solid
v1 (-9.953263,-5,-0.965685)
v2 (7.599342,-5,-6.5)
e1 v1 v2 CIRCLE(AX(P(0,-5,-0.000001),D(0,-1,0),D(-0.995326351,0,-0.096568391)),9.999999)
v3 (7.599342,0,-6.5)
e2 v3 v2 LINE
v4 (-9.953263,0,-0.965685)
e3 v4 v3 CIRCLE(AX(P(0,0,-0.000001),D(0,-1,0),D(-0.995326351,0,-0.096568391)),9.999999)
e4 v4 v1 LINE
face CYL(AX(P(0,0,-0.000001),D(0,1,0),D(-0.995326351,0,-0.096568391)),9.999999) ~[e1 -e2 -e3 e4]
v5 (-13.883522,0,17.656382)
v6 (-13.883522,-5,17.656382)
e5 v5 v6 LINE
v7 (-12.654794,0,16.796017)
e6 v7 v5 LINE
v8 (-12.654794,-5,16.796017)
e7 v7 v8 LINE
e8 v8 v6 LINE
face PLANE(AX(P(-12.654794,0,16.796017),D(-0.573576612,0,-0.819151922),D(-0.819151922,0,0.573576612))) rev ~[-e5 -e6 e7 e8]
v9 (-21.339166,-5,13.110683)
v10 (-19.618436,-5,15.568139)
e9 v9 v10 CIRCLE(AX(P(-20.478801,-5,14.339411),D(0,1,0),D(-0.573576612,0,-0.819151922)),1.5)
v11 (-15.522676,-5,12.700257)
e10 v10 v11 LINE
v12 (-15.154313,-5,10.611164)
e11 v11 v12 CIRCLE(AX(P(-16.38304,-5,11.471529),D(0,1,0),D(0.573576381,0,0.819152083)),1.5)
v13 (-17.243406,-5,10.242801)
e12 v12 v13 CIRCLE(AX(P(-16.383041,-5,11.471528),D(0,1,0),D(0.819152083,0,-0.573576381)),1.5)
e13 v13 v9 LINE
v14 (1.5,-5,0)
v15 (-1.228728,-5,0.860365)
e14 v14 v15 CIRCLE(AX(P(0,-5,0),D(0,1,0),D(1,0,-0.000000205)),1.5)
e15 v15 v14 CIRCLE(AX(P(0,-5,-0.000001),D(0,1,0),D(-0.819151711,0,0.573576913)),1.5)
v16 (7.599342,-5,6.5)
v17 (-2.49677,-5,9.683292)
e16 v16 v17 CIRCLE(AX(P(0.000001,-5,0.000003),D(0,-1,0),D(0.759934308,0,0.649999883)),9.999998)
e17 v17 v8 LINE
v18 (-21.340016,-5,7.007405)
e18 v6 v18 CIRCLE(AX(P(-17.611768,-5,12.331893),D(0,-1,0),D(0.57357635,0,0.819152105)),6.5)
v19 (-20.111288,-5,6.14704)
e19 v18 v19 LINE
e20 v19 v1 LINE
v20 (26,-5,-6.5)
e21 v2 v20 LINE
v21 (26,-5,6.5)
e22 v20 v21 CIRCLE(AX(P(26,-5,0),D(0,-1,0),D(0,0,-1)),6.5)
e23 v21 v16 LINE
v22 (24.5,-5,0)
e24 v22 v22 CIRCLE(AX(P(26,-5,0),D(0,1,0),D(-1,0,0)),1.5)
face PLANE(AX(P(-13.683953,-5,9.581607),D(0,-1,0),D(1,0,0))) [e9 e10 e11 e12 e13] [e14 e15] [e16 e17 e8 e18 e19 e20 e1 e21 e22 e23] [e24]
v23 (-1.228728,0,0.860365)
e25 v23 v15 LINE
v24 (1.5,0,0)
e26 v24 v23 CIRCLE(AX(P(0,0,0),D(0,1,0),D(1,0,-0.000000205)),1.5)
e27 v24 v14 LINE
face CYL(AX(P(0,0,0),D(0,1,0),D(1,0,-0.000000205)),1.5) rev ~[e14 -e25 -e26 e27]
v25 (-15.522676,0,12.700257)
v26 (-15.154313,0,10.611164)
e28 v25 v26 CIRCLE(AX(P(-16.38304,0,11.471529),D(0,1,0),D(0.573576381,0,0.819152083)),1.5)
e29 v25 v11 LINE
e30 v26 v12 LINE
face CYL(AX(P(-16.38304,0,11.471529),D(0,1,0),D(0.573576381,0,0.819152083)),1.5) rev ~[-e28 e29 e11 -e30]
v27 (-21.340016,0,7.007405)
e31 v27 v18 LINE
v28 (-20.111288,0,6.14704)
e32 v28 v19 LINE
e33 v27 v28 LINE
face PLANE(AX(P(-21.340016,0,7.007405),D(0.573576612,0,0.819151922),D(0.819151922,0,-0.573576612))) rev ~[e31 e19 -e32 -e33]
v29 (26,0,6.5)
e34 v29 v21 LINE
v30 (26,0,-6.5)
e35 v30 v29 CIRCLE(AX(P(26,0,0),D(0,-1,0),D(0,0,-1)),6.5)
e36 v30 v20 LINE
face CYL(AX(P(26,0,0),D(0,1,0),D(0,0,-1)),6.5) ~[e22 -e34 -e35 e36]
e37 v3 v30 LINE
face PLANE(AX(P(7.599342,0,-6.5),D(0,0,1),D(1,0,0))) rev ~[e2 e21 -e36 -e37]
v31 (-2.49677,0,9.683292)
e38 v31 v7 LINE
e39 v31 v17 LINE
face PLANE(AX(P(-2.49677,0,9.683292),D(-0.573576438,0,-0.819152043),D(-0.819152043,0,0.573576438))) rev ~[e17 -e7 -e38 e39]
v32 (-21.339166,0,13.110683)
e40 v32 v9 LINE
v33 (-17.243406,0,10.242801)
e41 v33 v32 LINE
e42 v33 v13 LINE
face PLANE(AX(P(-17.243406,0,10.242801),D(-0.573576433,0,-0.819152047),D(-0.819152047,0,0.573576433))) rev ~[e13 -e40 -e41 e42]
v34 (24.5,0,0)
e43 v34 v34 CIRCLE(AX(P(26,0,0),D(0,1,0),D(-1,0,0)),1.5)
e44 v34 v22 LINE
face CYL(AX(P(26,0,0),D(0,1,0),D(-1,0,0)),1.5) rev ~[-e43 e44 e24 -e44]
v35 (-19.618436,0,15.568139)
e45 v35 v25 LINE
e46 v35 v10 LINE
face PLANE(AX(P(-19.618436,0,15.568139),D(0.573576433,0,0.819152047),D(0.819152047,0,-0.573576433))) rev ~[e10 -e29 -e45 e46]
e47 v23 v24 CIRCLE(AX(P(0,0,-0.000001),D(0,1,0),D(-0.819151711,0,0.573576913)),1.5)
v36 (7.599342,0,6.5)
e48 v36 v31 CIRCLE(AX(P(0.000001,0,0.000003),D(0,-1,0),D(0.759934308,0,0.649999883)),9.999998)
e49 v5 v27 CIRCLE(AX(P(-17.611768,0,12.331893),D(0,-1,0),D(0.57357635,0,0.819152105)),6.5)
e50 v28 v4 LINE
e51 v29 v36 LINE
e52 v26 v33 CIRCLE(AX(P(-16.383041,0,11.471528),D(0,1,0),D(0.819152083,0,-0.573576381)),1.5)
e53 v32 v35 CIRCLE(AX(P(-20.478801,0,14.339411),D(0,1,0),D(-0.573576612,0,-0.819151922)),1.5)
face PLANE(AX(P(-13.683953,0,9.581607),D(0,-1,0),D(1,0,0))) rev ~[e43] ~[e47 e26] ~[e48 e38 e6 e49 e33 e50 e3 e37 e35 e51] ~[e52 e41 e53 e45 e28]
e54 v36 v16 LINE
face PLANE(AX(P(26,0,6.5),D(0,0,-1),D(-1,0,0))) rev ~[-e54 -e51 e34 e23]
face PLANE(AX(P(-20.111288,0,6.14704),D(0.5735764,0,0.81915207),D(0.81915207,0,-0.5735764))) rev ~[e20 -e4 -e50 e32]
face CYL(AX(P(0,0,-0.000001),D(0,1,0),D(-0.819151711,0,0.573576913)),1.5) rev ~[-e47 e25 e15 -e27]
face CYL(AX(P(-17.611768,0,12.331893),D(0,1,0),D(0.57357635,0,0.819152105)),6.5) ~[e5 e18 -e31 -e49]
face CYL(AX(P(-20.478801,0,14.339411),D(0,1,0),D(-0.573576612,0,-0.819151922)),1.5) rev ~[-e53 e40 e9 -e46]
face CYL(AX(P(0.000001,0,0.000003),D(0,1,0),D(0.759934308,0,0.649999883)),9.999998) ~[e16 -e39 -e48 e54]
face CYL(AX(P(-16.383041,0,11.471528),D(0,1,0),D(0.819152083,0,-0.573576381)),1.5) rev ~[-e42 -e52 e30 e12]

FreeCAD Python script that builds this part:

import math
import FreeCAD as App
import Part
import Sketcher

V = App.Vector
Q = App.Units.Quantity

doc = App.newDocument("Part")
body = doc.addObject("PartDesign::Body", "Body")

sketch1 = body.newObject("Sketcher::SketchObject", "Sketch")
sketch1.AttachmentSupport = (doc.getObject("XZ_Plane"), [""])
sketch1.MapMode = "FlatFace"
sketch1.addGeometry(Part.ArcOfCircle(Part.Circle(V(0.000001, 0.000003, 0), V(0, 0, 1), 9.999998), math.radians(40.541593), math.radians(104.458406)), False)
sketch1.addGeometry(Part.LineSegment(V(-2.49677, 9.683292, 0), V(-12.654794, 16.796017, 0)), False)
sketch1.addGeometry(Part.LineSegment(V(-12.654794, 16.796017, 0), V(-13.883522, 17.656382, 0)), False)
sketch1.addGeometry(Part.ArcOfCircle(Part.Circle(V(-17.611768, 12.331893, 0), V(0, 0, 1), 6.5), math.radians(55.000006), math.radians(234.999994)), False)
sketch1.addGeometry(Part.LineSegment(V(-21.340016, 7.007405, 0), V(-20.111288, 6.14704, 0)), False)
sketch1.addGeometry(Part.LineSegment(V(-20.111288, 6.14704, 0), V(-9.953263, -0.965685, 0)), False)
sketch1.addGeometry(Part.ArcOfCircle(Part.Circle(V(0, -0.000001, 0), V(0, 0, 1), 9.999999), math.radians(-174.458403), math.radians(-40.541596)), False)
sketch1.addGeometry(Part.LineSegment(V(7.599342, -6.5, 0), V(26, -6.5, 0)), False)
sketch1.addGeometry(Part.ArcOfCircle(Part.Circle(V(26, 0, 0), V(0, 0, 1), 6.5), math.radians(-90), math.radians(90)), False)
sketch1.addGeometry(Part.LineSegment(V(26, 6.5, 0), V(7.599342, 6.5, 0)), False)
sketch1.addGeometry(Part.ArcOfCircle(Part.Circle(V(0, -0.000001, 0), V(0, 0, 1), 1.5), math.radians(0.000019), math.radians(144.999967)), False)
sketch1.addGeometry(Part.ArcOfCircle(Part.Circle(V(0, 0, 0), V(0, 0, 1), 1.5), math.radians(144.999998), math.radians(359.999988)), False)
sketch1.addGeometry(Part.Circle(V(26, 0, 0), V(0, 0, 1), 1.5), False)
sketch1.addGeometry(Part.LineSegment(V(-19.618436, 15.568139, 0), V(-15.522676, 12.700257, 0)), False)
sketch1.addGeometry(Part.ArcOfCircle(Part.Circle(V(-16.38304, 11.471529, 0), V(0, 0, 1), 1.5), math.radians(-35.000028), math.radians(55.000004)), False)
sketch1.addGeometry(Part.ArcOfCircle(Part.Circle(V(-16.383041, 11.471528, 0), V(0, 0, 1), 1.5), math.radians(-125.000028), math.radians(-34.999996)), False)
sketch1.addGeometry(Part.LineSegment(V(-17.243406, 10.242801, 0), V(-21.339166, 13.110683, 0)), False)
sketch1.addGeometry(Part.ArcOfCircle(Part.Circle(V(-20.478801, 14.339411, 0), V(0, 0, 1), 1.5), math.radians(54.999988), math.radians(234.999988)), False)
sketch1.addConstraint(Sketcher.Constraint("Coincident", 0, 2, 1, 1))
sketch1.addConstraint(Sketcher.Constraint("Coincident", 1, 2, 2, 1))
sketch1.addConstraint(Sketcher.Constraint("Tangent", 2, 2, 3, 1))
sketch1.addConstraint(Sketcher.Constraint("Tangent", 3, 2, 4, 1))
sketch1.addConstraint(Sketcher.Constraint("Coincident", 4, 2, 5, 1))
sketch1.addConstraint(Sketcher.Constraint("Coincident", 5, 2, 6, 1))
sketch1.addConstraint(Sketcher.Constraint("Coincident", 6, 2, 7, 1))
sketch1.addConstraint(Sketcher.Constraint("Tangent", 7, 2, 8, 1))
sketch1.addConstraint(Sketcher.Constraint("Tangent", 8, 2, 9, 1))
sketch1.addConstraint(Sketcher.Constraint("Coincident", 9, 2, 0, 1))
sketch1.addConstraint(Sketcher.Constraint("Tangent", 10, 1, 11, 2))
sketch1.addConstraint(Sketcher.Constraint("Coincident", 11, 1, 10, 2))
sketch1.addConstraint(Sketcher.Constraint("Tangent", 13, 2, 14, 2))
sketch1.addConstraint(Sketcher.Constraint("Tangent", 14, 1, 15, 2))
sketch1.addConstraint(Sketcher.Constraint("Tangent", 15, 1, 16, 1))
sketch1.addConstraint(Sketcher.Constraint("Tangent", 16, 2, 17, 2))
sketch1.addConstraint(Sketcher.Constraint("Tangent", 17, 1, 13, 1))
sketch1.addConstraint(Sketcher.Constraint("Horizontal", 7))
sketch1.addConstraint(Sketcher.Constraint("Horizontal", 9))
sketch1.addConstraint(Sketcher.Constraint("Coincident", 0, 3, -1, 1))
sketch1.addConstraint(Sketcher.Constraint("Coincident", 6, 3, -1, 1))
sketch1.addConstraint(Sketcher.Constraint("Coincident", 10, 3, -1, 1))
sketch1.addConstraint(Sketcher.Constraint("Coincident", 12, 3, 8, 3))
sketch1.addConstraint(Sketcher.Constraint("Equal", 0, 6))
sketch1.addConstraint(Sketcher.Constraint("Equal", 3, 8))
sketch1.addConstraint(Sketcher.Constraint("Equal", 11, 12))
sketch1.addConstraint(Sketcher.Constraint("Equal", 12, 14))
sketch1.addConstraint(Sketcher.Constraint("Equal", 14, 15))
sketch1.addConstraint(Sketcher.Constraint("Equal", 15, 17))
sketch1.addConstraint(Sketcher.Constraint("PointOnObject", 8, 3, -1))
sketch1.addConstraint(Sketcher.Constraint("PointOnObject", 10, 1, -1))
sketch1.addConstraint(Sketcher.Constraint("Parallel", 1, 2))
sketch1.addConstraint(Sketcher.Constraint("Parallel", 2, 4))
sketch1.addConstraint(Sketcher.Constraint("Parallel", 4, 5))
sketch1.addConstraint(Sketcher.Constraint("Parallel", 5, 13))
sketch1.addConstraint(Sketcher.Constraint("Equal", 2, 4))
sketch1.addConstraint(Sketcher.Constraint("Equal", 1, 5))
sketch1.addConstraint(Sketcher.Constraint("Diameter", 12, 3.0))
sketch1.addConstraint(Sketcher.Constraint("Radius", 6, 9.999999))
sketch1.addConstraint(Sketcher.Constraint("Radius", 3, 6.5))
sketch1.addConstraint(Sketcher.Constraint("Angle", 1, Q("145 deg")))
sketch1.addConstraint(Sketcher.Constraint("Distance", 13, 5.0))
sketch1.addConstraint(Sketcher.Constraint("DistanceX", -1, 1, 8, 3, 26.0))
sketch1.addConstraint(Sketcher.Constraint("Distance", 2, 1.5))
sketch1.addConstraint(Sketcher.Constraint("DistanceX", 17, 3, -1, 1, 20.478801))
sketch1.addConstraint(Sketcher.Constraint("DistanceY", -1, 1, 15, 1, 10.242801))
sketch1.addConstraint(Sketcher.Constraint("Distance", 5, 12.400658))
sketch1.addConstraint(Sketcher.Constraint("DistanceX", 11, 1, 0, 3, 1.228729))
sketch1.addConstraint(Sketcher.Constraint("DistanceY", 14, 1, 3, 3, 1.720729))
pad1 = body.newObject("PartDesign::Pad", "Pad")
pad1.Profile = sketch1
pad1.Length = 5

doc.recompute()
